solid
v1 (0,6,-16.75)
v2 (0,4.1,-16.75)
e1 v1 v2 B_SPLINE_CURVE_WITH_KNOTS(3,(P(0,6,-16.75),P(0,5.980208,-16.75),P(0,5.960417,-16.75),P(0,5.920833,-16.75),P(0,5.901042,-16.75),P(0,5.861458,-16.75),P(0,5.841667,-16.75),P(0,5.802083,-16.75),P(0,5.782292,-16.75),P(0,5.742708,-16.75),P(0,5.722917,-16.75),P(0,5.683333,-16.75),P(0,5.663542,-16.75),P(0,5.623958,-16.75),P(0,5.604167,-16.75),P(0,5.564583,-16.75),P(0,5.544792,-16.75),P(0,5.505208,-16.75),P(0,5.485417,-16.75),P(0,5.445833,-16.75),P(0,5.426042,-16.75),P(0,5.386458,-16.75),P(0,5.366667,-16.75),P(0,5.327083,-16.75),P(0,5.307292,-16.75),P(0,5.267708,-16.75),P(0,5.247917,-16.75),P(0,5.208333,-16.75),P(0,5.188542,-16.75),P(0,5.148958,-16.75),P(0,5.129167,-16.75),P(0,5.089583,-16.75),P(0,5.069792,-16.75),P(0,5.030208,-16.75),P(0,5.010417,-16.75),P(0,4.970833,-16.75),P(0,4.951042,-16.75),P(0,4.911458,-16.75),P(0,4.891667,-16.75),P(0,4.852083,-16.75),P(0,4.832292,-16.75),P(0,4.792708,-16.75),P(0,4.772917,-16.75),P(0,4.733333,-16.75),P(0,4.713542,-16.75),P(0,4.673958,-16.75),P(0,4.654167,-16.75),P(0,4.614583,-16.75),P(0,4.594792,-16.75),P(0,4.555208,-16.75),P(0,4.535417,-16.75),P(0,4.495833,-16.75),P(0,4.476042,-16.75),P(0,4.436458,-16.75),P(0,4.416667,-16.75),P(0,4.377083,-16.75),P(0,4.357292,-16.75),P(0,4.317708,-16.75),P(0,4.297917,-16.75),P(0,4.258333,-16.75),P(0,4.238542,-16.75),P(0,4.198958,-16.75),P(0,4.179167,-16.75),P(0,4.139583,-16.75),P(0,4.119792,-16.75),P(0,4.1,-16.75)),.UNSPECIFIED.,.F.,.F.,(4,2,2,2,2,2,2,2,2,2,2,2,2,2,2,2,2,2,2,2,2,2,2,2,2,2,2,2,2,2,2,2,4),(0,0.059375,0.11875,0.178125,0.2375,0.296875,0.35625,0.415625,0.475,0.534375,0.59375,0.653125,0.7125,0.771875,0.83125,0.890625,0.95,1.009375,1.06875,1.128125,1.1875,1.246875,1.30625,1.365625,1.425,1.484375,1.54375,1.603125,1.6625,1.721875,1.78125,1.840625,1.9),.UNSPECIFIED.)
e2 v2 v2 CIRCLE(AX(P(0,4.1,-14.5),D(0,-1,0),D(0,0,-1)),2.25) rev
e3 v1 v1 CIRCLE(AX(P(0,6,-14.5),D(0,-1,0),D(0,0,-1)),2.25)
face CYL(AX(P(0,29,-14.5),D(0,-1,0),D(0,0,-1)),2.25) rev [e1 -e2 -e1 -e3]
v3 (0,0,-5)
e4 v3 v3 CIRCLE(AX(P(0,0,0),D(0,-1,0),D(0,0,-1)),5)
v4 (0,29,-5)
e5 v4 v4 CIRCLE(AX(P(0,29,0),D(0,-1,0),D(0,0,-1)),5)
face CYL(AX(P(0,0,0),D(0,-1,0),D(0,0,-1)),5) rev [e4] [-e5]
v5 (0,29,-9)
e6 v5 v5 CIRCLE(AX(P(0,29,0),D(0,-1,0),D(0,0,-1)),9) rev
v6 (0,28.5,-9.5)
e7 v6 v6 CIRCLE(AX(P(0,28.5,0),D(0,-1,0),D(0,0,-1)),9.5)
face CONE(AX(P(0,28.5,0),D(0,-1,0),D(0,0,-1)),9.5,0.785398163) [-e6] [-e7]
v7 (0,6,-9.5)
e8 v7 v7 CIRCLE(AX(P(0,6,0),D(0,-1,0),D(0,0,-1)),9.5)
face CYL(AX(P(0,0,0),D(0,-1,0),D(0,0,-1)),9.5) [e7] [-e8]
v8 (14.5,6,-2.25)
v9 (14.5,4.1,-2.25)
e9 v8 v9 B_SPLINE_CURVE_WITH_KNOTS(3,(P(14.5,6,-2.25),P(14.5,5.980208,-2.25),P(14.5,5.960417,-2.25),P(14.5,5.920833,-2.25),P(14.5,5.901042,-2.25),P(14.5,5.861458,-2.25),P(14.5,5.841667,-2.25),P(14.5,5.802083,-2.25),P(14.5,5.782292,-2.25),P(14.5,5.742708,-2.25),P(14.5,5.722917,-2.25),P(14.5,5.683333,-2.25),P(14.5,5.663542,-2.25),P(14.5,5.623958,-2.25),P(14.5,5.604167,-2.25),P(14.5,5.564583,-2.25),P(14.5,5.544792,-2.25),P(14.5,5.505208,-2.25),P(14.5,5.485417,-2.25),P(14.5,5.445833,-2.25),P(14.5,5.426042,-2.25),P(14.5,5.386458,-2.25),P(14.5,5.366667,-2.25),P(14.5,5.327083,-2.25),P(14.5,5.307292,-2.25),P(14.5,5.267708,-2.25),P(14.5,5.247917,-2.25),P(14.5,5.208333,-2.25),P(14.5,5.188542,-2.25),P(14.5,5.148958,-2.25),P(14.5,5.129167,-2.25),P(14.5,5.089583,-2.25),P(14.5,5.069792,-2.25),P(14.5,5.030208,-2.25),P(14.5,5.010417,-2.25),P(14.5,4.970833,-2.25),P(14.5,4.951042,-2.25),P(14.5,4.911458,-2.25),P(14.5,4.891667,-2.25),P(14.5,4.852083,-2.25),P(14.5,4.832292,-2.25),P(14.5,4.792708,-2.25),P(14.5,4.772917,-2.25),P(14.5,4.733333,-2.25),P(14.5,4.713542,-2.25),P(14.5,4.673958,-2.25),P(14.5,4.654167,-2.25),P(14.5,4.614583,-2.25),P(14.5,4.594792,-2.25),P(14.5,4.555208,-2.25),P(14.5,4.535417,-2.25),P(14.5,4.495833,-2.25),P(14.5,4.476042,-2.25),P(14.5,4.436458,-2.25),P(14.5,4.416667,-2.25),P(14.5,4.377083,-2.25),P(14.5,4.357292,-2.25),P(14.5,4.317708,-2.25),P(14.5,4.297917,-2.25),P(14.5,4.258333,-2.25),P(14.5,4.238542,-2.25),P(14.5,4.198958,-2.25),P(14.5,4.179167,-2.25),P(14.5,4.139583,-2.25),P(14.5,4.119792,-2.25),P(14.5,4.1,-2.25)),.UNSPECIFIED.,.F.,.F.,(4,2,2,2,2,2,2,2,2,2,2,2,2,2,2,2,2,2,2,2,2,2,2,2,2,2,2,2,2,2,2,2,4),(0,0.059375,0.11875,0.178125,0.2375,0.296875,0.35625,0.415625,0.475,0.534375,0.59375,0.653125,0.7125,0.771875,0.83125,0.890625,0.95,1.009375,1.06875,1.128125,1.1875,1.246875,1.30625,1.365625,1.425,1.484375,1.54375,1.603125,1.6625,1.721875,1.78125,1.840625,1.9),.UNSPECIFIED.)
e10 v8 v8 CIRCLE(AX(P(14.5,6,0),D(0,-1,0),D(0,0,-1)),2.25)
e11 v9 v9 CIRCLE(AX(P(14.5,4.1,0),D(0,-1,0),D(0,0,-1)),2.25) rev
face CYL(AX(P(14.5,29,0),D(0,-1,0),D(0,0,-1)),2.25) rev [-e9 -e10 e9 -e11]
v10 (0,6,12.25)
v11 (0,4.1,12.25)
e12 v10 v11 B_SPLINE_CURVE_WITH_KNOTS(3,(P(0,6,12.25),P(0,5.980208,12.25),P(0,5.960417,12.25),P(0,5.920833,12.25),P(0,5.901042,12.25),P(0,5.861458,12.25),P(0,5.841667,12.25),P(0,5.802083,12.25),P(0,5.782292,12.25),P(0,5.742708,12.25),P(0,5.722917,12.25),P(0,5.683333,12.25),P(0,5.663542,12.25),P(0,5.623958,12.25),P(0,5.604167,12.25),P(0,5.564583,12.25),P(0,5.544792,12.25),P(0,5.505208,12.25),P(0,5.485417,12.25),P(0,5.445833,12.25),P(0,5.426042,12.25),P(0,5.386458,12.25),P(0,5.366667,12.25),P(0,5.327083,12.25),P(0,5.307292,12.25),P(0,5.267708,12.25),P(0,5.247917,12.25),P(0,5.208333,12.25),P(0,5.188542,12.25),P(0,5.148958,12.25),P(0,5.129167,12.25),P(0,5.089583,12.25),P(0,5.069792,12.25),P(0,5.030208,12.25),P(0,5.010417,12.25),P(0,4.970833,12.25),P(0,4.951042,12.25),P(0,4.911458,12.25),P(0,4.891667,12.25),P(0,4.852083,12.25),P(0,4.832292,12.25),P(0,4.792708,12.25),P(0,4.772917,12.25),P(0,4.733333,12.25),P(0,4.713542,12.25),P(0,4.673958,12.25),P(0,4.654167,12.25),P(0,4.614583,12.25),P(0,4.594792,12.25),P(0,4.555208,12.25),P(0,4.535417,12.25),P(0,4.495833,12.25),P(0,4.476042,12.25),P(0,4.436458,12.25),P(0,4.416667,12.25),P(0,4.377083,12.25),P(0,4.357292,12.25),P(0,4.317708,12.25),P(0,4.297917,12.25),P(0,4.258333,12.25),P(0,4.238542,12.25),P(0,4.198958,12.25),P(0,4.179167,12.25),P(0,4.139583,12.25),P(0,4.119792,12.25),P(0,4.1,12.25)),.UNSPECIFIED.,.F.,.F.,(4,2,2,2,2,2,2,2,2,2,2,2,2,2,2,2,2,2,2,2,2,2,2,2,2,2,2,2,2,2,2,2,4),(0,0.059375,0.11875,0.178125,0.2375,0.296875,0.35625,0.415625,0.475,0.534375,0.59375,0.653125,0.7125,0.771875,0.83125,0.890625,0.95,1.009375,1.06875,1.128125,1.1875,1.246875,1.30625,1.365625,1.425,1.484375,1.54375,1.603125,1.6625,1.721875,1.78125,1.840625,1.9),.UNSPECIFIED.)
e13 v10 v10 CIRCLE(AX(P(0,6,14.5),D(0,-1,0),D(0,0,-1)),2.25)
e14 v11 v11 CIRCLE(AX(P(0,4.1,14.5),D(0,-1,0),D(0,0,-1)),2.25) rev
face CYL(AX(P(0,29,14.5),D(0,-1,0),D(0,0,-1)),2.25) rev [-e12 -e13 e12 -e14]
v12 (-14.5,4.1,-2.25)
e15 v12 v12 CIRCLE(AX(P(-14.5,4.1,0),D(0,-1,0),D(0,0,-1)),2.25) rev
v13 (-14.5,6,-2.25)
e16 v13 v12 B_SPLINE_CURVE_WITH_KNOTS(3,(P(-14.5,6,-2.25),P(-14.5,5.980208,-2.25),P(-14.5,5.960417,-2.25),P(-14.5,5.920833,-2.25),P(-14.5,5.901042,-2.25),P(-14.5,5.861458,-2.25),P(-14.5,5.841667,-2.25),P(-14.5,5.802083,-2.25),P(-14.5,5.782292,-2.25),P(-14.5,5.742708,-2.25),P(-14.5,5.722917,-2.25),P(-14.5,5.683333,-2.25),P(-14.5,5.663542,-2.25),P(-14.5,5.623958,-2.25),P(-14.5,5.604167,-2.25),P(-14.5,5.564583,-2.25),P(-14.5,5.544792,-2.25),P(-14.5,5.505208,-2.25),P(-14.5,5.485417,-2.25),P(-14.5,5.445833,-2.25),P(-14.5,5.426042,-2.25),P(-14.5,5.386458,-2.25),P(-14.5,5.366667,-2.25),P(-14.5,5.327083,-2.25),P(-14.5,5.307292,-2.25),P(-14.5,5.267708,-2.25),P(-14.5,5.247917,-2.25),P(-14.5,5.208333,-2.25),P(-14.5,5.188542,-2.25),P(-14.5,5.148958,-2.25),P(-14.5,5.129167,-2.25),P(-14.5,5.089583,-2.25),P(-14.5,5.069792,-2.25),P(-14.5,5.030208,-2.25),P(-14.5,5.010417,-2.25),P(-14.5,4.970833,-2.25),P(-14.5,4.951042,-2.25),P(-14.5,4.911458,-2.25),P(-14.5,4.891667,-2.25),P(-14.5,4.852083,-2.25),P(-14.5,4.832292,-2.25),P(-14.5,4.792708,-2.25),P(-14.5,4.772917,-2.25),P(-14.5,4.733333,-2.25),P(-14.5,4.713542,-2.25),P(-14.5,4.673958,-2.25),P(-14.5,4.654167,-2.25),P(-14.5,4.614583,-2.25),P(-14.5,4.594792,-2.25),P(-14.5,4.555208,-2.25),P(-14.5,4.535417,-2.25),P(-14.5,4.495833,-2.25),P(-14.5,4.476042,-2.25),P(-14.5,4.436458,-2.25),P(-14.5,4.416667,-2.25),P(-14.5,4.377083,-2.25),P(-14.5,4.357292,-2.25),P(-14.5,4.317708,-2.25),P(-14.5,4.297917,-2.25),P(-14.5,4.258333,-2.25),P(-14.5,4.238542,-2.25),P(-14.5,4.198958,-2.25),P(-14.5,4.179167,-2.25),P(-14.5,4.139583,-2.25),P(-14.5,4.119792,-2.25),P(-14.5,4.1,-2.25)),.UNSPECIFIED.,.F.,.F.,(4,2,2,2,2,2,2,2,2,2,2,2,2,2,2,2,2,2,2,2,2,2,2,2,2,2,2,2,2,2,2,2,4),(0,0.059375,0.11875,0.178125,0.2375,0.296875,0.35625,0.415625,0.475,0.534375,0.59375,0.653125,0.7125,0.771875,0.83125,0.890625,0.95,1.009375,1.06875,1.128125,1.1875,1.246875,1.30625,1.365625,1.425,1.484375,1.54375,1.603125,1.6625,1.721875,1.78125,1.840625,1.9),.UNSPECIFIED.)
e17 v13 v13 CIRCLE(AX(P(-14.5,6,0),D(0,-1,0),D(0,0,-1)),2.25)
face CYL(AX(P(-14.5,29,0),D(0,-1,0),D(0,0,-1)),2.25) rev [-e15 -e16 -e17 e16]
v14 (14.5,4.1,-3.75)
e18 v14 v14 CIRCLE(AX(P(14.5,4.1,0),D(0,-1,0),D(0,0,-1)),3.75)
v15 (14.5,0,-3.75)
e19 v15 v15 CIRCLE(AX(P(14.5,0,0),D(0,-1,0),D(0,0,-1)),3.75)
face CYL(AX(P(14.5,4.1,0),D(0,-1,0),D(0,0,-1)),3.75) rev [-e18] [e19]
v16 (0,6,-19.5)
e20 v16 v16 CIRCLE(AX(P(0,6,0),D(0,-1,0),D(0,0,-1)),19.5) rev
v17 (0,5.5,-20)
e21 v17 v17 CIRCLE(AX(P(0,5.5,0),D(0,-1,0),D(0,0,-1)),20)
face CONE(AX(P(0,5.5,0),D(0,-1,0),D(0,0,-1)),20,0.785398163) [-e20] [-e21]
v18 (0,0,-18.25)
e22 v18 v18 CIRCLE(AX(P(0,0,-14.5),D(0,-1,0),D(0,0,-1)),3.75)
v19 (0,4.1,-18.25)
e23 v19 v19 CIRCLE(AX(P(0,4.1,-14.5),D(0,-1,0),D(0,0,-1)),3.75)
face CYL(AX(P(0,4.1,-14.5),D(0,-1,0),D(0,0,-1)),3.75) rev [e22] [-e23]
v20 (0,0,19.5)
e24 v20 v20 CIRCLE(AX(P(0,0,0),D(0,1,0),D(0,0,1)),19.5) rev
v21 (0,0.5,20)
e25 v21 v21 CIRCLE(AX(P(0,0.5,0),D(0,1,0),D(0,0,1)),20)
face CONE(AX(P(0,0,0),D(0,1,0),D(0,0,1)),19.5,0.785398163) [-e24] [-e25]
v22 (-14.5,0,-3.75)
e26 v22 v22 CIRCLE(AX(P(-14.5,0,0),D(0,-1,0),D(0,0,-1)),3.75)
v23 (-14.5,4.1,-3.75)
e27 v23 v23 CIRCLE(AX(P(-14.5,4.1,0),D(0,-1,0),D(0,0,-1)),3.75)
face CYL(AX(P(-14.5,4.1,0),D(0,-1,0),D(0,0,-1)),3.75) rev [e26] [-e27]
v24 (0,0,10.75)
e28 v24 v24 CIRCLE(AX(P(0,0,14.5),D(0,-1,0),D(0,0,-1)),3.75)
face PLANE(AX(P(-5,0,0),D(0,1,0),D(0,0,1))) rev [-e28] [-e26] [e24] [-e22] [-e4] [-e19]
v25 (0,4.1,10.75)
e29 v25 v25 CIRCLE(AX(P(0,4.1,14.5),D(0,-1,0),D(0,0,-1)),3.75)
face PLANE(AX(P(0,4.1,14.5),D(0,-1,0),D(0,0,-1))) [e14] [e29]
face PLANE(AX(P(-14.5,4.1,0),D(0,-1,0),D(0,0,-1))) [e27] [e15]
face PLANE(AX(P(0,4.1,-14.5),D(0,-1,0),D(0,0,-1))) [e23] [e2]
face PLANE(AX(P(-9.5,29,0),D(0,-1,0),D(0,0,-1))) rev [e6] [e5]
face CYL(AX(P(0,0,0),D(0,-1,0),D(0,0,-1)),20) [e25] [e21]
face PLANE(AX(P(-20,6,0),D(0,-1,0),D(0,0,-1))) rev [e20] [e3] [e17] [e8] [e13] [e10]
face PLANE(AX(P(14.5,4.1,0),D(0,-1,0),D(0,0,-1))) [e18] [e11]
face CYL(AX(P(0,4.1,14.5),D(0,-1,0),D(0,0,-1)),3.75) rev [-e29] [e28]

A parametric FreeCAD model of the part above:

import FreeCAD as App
import Part
import Sketcher
from FreeCAD import Vector
Q = App.Units.Quantity


def edges_at(feature, points):
    """Names of the edges that pass closest to the given points."""
    edges = feature.Shape.Edges
    near = lambda p: min(range(len(edges)), key=lambda i: edges[i].distToShape(Part.Vertex(*p))[0])
    return sorted({f"Edge{near(p) + 1}" for p in points})


def add_polygon(sketch, points):
    """Adds a closed chain of lines whose ends are joined by coincident constraints."""
    first, n = sketch.GeometryCount, len(points)
    for a, b in zip(points, points[1:] + points[:1]):
        sketch.addGeometry(Part.LineSegment(App.Vector(*a, 0), App.Vector(*b, 0)), False)
    for i in range(n):
        sketch.addConstraint(Sketcher.Constraint("Coincident", first + i, 2, first + (i + 1) % n, 1))

doc = App.newDocument("Part")
body = doc.addObject("PartDesign::Body", "Body")

sketch1 = body.newObject("Sketcher::SketchObject", "Sketch")
sketch1.AttachmentSupport = (doc.getObject("XY_Plane"), [""])
sketch1.MapMode = "FlatFace"
add_polygon(sketch1, [(-20, 0), (-5, 0), (-5, 29), (-9.5, 29), (-9.5, 6), (-20, 6)])
sketch1.addConstraint([
    Sketcher.Constraint("Horizontal", 0),
    Sketcher.Constraint("Vertical", 1),
    Sketcher.Constraint("Horizontal", 2),
    Sketcher.Constraint("Vertical", 3),
    Sketcher.Constraint("Horizontal", 4),
    Sketcher.Constraint("Vertical", 5),
    Sketcher.Constraint("PointOnObject", 0, 2, -1),
    Sketcher.Constraint("DistanceX", 0, 1, 0, 2, Q("15 mm")),
    Sketcher.Constraint("DistanceY", 1, 1, 1, 2, Q("29 mm")),
    Sketcher.Constraint("DistanceY", 3, 2, 3, 1, Q("23 mm")),
    Sketcher.Constraint("DistanceX", 2, 2, 2, 1, Q("4.5 mm")),
    Sketcher.Constraint("DistanceX", 0, 2, -1, 1, Q("5 mm")),
])
revolution = body.newObject("PartDesign::Revolution", "Revolution")
revolution.Profile = sketch1
revolution.ReferenceAxis = (sketch1, ["V_Axis"])
revolution.Angle = 360

sketch2 = body.newObject("Sketcher::SketchObject", "Sketch001")
sketch2.AttachmentSupport = (doc.getObject("XZ_Plane"), [""])
sketch2.MapMode = "FlatFace"
sketch2.addGeometry([
    Part.Circle(Vector(0, 14.5, 0), Vector(0, 0, 1), 2.25),
    Part.Circle(Vector(14.5, 0, 0), Vector(0, 0, 1), 2.25),
    Part.Circle(Vector(0, -14.5, 0), Vector(0, 0, 1), 2.25),
    Part.Circle(Vector(-14.5, 0, 0), Vector(0, 0, 1), 2.25),
], False)
sketch2.addConstraint([
    Sketcher.Constraint("Equal", 0, 1),
    Sketcher.Constraint("Equal", 1, 2),
    Sketcher.Constraint("Equal", 2, 3),
    Sketcher.Constraint("Symmetric", 0, 3, 2, 3, -1, 1),
    Sketcher.Constraint("Symmetric", 1, 3, 3, 3, -1, 1),
    Sketcher.Constraint("PointOnObject", 0, 3, -2),
    Sketcher.Constraint("PointOnObject", 1, 3, -1),
    Sketcher.Constraint("Diameter", 0, Q("4.5 mm")),
    Sketcher.Constraint("DistanceY", 2, 3, 0, 3, Q("29 mm")),
    Sketcher.Constraint("DistanceX", 3, 3, 1, 3, Q("29 mm")),
])
pocket1 = body.newObject("PartDesign::Pocket", "Pocket")
pocket1.Profile = sketch2
pocket1.Type = "ThroughAll"

sketch3 = body.newObject("Sketcher::SketchObject", "Sketch002")
sketch3.AttachmentSupport = (doc.getObject("XZ_Plane"), [""])
sketch3.MapMode = "FlatFace"
sketch3.addGeometry([
    Part.Circle(Vector(0, 14.5, 0), Vector(0, 0, 1), 3.75),
    Part.Circle(Vector(14.5, 0, 0), Vector(0, 0, 1), 3.75),
    Part.Circle(Vector(0, -14.5, 0), Vector(0, 0, 1), 3.75),
    Part.Circle(Vector(-14.5, 0, 0), Vector(0, 0, 1), 3.75),
], False)
sketch3.addConstraint([
    Sketcher.Constraint("Equal", 0, 1),
    Sketcher.Constraint("Equal", 1, 2),
    Sketcher.Constraint("Equal", 2, 3),
    Sketcher.Constraint("Symmetric", 0, 3, 2, 3, -1, 1),
    Sketcher.Constraint("Symmetric", 1, 3, 3, 3, -1, 1),
    Sketcher.Constraint("PointOnObject", 0, 3, -2),
    Sketcher.Constraint("PointOnObject", 1, 3, -1),
    Sketcher.Constraint("Diameter", 0, Q("7.5 mm")),
    Sketcher.Constraint("DistanceY", 2, 3, 0, 3, Q("29 mm")),
    Sketcher.Constraint("DistanceX", 3, 3, 1, 3, Q("29 mm")),
])
pocket2 = body.newObject("PartDesign::Pocket", "Pocket001")
pocket2.Profile = sketch3
pocket2.Length = 4.1
doc.recompute()

chamfer = body.newObject("PartDesign::Chamfer", "Chamfer")
chamfer.Base = (pocket2, edges_at(pocket2, [(0, 29, 9.5), (0, 6, 20), (0, 0, 20)]))
chamfer.Size = 0.5

doc.recompute()
